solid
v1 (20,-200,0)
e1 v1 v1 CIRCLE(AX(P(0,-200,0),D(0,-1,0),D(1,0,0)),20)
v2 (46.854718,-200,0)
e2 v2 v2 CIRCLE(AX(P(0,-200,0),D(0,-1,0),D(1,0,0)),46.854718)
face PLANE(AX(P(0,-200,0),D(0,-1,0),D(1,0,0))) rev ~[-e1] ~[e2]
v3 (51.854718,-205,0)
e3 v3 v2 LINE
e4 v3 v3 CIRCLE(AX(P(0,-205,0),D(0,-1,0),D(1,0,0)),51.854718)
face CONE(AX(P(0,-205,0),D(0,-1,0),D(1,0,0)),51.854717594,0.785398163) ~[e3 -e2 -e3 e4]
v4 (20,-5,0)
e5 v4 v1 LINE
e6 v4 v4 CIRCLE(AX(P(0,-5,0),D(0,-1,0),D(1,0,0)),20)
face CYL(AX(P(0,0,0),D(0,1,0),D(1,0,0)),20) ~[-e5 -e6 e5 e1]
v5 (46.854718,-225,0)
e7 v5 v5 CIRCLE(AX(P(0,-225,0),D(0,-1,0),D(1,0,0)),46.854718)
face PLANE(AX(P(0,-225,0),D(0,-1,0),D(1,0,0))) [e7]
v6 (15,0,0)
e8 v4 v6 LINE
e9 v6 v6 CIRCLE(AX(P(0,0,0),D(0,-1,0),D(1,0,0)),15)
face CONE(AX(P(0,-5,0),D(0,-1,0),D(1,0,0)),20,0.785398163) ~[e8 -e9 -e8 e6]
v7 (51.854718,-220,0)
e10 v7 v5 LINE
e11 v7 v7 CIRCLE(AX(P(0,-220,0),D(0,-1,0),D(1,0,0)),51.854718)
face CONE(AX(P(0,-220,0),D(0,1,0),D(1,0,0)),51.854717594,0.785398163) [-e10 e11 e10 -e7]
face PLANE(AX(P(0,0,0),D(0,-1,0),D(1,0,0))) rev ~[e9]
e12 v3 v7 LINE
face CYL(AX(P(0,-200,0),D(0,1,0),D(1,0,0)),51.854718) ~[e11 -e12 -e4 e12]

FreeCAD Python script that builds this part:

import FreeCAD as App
import Part
import Sketcher

V = App.Vector


def edges_at(feature, points):
    """Names of the edges that pass closest to the given points."""
    edges = feature.Shape.Edges
    near = lambda p: min(range(len(edges)), key=lambda i: edges[i].distToShape(Part.Vertex(*p))[0])
    return sorted({f"Edge{near(p) + 1}" for p in points})

doc = App.newDocument("Part")
body = doc.addObject("PartDesign::Body", "Body")

sketch1 = body.newObject("Sketcher::SketchObject", "Sketch")
sketch1.AttachmentSupport = (doc.getObject("XZ_Plane"), [""])
sketch1.MapMode = "FlatFace"
sketch1.addGeometry(Part.Circle(V(0, 0, 0), V(0, 0, 1), 20), False)
sketch1.addConstraint(Sketcher.Constraint("Coincident", 0, 3, -1, 1))
sketch1.addConstraint(Sketcher.Constraint("Diameter", 0, 40.0))
pad1 = body.newObject("PartDesign::Pad", "Pad")
pad1.Profile = sketch1
pad1.Length = 200

sketch2 = body.newObject("Sketcher::SketchObject", "Sketch001")
sketch2.AttachmentSupport = (doc.getObject("XZ_Plane"), [""])
sketch2.MapMode = "FlatFace"
sketch2.AttachmentOffset = App.Placement(V(0, 0, 200), App.Rotation())
sketch2.addGeometry(Part.Circle(V(0, 0, 0), V(0, 0, 1), 52), False)
sketch2.addConstraint(Sketcher.Constraint("Coincident", 0, 3, -1, 1))
sketch2.addConstraint(Sketcher.Constraint("Diameter", 0, 103.709435))
pad2 = body.newObject("PartDesign::Pad", "Pad001")
pad2.Profile = sketch2
pad2.Length = 25
doc.recompute()

chamfer = body.newObject("PartDesign::Chamfer", "Chamfer")
chamfer.Base = (pad2, edges_at(pad2, [(-51.855, -225, 0), (-51.855, -200, 0), (-20, 0, 0)]))
chamfer.Size = 5

sketch3 = body.newObject("Sketcher::SketchObject", "Sketch002")
sketch3.AttachmentSupport = (doc.getObject("XY_Plane"), [""])
sketch3.MapMode = "FlatFace"
sketch3.AttachmentOffset = App.Placement(V(0, 0, -25), App.Rotation())
sketch3.addGeometry(Part.Circle(V(0, -19, 0), V(0, 0, 1), 7), False)
sketch3.addConstraint(Sketcher.Constraint("PointOnObject", 0, 3, -2))
sketch3.addConstraint(Sketcher.Constraint("Diameter", 0, 14.396396))
sketch3.addConstraint(Sketcher.Constraint("DistanceY", 0, 3, -1, 1, 18.577563))
pocket1 = body.newObject("PartDesign::Pocket", "Pocket")
pocket1.Profile = sketch3
pocket1.Length = 26.855718

doc.recompute()
